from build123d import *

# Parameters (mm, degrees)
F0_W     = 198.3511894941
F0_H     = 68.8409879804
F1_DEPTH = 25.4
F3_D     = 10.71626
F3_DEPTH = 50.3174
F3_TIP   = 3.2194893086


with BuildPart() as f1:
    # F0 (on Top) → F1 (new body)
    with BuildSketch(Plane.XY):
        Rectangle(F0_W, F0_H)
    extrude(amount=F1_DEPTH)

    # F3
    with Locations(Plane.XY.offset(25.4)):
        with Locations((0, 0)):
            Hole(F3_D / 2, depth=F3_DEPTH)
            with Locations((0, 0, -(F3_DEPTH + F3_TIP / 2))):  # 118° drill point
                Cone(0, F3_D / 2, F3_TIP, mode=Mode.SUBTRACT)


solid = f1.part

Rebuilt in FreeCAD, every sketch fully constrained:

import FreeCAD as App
import Part
import Sketcher
from FreeCAD import Vector
Q = App.Units.Quantity


def add_polygon(sketch, points):
    """Adds a closed chain of lines whose ends are joined by coincident constraints."""
    first, n = sketch.GeometryCount, len(points)
    for a, b in zip(points, points[1:] + points[:1]):
        sketch.addGeometry(Part.LineSegment(App.Vector(*a, 0), App.Vector(*b, 0)), False)
    for i in range(n):
        sketch.addConstraint(Sketcher.Constraint("Coincident", first + i, 2, first + (i + 1) % n, 1))

doc = App.newDocument("Part")
params = doc.addObject("Spreadsheet::Sheet", "Params")
for row, (alias, value) in enumerate([
    ("pad1_length", "1 in"),
    ("hole_diameter", "0.4219 in"),
    ("hole_depth", "1.981 in"),
], start=1):
    params.set(f"A{row}", alias)
    params.set(f"B{row}", "=" + value)
    params.setAlias(f"B{row}", alias)

body = doc.addObject("PartDesign::Body", "Body")

sketch1 = body.newObject("Sketcher::SketchObject", "Sketch")
sketch1.AttachmentSupport = (doc.getObject("XY_Plane"), [""])
sketch1.MapMode = "FlatFace"
add_polygon(sketch1, [(-99.175595, 34.420494), (-99.175595, -34.420494), (99.175595, -34.420494), (99.175595, 34.420494)])
sketch1.addConstraint([
    Sketcher.Constraint("Vertical", 0),
    Sketcher.Constraint("Horizontal", 1),
    Sketcher.Constraint("Vertical", 2),
    Sketcher.Constraint("Horizontal", 3),
    Sketcher.Constraint("Symmetric", 0, 2, 2, 2, -1, 1),
    Sketcher.Constraint("DistanceX", 1, 1, 1, 2, Q("198.351189 mm")),
    Sketcher.Constraint("DistanceY", 0, 2, 0, 1, Q("68.840988 mm")),
])
pad1 = body.newObject("PartDesign::Pad", "Pad")
pad1.Profile = sketch1
pad1.setExpression("Length", "Params.pad1_length")

sketch2 = body.newObject("Sketcher::SketchObject", "Sketch001")
sketch2.AttachmentSupport = (doc.getObject("XY_Plane"), [""])
sketch2.MapMode = "FlatFace"
sketch2.AttachmentOffset = App.Placement(Vector(0, 0, 1 * 25.4), App.Rotation())
sketch2.addGeometry(Part.Circle(Vector(0, 0, 0), Vector(0, 0, 1), 5.35813), False)
sketch2.addConstraint([
    Sketcher.Constraint("Coincident", 0, 3, -1, 1),
    Sketcher.Constraint("Diameter", 0, Q("0.4219 in")),
])
doc.recompute()
hole = body.newObject("PartDesign::Hole", "Hole")
hole.Profile = sketch2
hole.ThreadType = "None"
hole.setExpression("Diameter", "Params.hole_diameter")
hole.DepthType = "Dimension"
hole.setExpression("Depth", "Params.hole_depth")
hole.DrillPoint = "Angled"
hole.DrillPointAngle = 118

doc.recompute()
